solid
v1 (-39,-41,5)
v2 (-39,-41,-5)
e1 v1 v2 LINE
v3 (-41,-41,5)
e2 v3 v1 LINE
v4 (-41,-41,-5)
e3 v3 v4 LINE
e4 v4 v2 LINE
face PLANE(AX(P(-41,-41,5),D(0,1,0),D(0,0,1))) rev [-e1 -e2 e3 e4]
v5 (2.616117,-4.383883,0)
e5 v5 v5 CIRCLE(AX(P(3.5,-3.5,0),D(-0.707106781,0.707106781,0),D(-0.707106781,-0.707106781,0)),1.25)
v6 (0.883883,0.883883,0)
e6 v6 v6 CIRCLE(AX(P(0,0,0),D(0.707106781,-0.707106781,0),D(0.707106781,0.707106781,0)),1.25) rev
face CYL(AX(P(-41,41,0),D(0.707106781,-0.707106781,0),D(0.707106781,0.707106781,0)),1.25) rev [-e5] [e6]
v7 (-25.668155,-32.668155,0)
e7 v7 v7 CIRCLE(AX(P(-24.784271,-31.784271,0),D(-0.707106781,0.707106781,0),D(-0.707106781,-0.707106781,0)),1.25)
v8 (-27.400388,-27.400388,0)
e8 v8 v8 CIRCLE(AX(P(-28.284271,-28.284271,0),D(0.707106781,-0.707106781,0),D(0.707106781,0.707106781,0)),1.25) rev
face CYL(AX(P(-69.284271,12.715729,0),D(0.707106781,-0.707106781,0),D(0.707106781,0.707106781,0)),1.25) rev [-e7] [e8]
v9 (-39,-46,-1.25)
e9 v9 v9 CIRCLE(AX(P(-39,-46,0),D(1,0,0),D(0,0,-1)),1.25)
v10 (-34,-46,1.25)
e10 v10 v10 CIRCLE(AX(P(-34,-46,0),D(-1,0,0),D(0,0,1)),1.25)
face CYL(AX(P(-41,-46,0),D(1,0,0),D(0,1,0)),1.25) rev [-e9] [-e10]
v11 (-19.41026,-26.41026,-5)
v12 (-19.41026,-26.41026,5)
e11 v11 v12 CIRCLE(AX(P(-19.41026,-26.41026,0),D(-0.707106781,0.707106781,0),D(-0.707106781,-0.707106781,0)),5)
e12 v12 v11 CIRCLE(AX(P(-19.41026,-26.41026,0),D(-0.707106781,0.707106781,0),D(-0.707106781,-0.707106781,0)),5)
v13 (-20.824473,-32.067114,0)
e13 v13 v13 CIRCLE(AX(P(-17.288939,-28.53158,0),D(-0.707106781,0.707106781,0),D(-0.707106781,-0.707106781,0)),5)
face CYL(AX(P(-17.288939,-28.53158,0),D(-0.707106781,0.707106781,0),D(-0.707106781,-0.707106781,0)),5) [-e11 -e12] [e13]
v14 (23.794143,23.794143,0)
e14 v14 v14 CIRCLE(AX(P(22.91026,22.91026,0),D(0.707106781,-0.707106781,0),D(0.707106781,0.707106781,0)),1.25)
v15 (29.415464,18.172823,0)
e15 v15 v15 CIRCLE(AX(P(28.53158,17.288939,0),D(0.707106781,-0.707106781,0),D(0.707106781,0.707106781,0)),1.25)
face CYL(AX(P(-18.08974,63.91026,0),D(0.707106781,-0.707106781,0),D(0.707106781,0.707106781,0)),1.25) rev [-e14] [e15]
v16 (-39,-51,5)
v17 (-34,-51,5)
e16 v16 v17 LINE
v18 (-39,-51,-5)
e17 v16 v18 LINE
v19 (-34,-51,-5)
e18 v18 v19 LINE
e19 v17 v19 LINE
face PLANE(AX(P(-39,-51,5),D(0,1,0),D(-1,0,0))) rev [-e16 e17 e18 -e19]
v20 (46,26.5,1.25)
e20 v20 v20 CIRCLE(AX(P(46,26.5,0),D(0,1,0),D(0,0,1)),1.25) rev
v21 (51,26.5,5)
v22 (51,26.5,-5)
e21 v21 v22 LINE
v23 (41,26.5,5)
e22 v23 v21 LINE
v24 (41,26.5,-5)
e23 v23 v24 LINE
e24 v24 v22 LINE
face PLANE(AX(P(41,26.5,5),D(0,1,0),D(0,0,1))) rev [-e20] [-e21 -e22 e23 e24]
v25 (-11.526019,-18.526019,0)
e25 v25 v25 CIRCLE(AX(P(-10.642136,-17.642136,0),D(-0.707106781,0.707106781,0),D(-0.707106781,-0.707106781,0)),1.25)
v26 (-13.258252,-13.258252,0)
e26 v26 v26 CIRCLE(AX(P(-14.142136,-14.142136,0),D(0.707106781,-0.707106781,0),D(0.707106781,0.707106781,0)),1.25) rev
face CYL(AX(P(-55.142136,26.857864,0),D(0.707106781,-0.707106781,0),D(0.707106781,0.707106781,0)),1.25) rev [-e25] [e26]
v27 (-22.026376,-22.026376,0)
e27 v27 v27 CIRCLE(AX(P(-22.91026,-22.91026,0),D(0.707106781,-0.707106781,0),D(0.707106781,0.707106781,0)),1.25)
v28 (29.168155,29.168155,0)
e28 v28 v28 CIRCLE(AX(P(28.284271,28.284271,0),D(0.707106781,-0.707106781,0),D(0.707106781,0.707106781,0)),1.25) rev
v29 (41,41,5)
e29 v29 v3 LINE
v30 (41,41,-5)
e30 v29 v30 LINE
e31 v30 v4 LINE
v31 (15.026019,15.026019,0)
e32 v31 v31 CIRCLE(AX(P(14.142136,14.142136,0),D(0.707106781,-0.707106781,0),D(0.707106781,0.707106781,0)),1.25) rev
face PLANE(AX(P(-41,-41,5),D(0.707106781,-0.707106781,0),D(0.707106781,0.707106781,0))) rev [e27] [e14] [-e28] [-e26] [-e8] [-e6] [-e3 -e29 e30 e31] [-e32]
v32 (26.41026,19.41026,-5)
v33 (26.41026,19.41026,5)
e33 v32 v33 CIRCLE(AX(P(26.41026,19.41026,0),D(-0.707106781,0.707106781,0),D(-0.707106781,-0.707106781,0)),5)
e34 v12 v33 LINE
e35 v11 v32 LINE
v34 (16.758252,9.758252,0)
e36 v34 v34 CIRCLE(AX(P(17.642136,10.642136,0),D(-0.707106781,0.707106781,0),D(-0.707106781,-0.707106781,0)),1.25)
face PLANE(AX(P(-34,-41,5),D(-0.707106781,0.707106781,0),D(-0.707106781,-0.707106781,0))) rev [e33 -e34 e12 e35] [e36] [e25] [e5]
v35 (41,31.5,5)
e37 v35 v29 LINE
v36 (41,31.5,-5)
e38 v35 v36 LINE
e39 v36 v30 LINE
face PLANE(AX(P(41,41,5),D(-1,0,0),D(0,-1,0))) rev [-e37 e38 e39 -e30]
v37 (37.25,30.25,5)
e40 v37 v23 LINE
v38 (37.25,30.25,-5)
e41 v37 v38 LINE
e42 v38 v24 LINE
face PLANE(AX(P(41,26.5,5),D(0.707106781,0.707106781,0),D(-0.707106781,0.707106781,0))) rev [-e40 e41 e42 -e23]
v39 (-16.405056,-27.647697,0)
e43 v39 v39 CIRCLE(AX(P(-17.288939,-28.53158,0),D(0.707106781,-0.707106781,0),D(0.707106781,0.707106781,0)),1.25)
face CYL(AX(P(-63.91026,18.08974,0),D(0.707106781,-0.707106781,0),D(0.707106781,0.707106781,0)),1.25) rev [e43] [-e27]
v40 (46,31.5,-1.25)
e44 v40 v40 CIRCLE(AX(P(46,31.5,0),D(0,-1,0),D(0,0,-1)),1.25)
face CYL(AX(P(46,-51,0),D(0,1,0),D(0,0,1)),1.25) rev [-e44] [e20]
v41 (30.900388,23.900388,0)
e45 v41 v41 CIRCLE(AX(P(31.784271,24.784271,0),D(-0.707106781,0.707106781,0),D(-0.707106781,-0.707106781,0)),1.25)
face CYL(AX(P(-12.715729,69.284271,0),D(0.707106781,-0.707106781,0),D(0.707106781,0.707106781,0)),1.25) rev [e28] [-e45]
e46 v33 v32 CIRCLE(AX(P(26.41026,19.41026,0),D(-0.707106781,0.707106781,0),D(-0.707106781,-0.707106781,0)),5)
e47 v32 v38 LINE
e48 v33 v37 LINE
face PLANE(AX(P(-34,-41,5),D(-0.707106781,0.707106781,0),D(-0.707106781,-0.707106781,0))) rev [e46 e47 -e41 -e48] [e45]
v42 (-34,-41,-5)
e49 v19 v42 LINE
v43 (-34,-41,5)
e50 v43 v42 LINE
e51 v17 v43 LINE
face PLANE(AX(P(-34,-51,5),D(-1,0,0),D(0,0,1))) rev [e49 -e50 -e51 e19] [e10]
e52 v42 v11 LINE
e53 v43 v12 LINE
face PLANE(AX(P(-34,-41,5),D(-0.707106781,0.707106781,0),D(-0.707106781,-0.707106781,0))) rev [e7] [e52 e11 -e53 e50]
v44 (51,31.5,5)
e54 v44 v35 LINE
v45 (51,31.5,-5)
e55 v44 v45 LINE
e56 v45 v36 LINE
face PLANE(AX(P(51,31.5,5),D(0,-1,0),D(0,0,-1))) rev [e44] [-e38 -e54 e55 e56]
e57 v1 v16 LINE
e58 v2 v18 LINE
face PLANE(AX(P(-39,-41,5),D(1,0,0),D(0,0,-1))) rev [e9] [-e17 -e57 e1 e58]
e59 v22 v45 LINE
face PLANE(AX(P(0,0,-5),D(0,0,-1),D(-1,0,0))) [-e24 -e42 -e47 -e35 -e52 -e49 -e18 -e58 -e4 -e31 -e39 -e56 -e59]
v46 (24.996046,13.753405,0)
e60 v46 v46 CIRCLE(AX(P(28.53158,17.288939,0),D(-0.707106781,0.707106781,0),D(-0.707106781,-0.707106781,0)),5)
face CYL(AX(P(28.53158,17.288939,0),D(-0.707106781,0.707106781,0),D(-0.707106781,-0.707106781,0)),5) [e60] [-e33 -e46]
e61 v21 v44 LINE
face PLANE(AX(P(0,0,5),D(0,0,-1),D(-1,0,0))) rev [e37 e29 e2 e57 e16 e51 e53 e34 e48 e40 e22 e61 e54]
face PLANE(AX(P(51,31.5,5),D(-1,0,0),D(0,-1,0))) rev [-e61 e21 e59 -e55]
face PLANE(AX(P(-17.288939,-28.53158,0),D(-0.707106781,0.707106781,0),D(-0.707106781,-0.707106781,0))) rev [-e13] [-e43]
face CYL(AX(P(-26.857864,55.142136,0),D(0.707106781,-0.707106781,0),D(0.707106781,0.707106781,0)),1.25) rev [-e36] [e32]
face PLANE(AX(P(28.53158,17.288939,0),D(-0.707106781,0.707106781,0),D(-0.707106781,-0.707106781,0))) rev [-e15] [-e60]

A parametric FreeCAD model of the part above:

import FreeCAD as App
import Part
import Sketcher
Q = App.Units.Quantity


def add_polygon(sketch, points):
    """Adds a closed chain of lines whose ends are joined by coincident constraints."""
    first, n = sketch.GeometryCount, len(points)
    for a, b in zip(points, points[1:] + points[:1]):
        sketch.addGeometry(Part.LineSegment(App.Vector(*a, 0), App.Vector(*b, 0)), False)
    for i in range(n):
        sketch.addConstraint(Sketcher.Constraint("Coincident", first + i, 2, first + (i + 1) % n, 1))

doc = App.newDocument("Part")
params = doc.addObject("Spreadsheet::Sheet", "Params")
for row, (alias, value) in enumerate([
    ("sketch1_width", "2 mm"),
    ("sketch1_width2", "5 mm"),
    ("sketch1_width3", "10 mm"),
    ("sketch1_height", "9.5 mm"),
    ("pad1_length", "10 mm"),
    ("sketch2_diameter", "2.5 mm"),
    ("sketch3_diameter", "2.5 mm"),
    ("sketch4_diameter", "10 mm"),
    ("pad2_length", "3 mm"),
    ("sketch5_diameter", "2.5 mm"),
    ("sketch6_diameter", "2.5 mm"),
    ("linearpattern_pitch", "20 mm"),
], start=1):
    params.set(f"A{row}", alias)
    params.set(f"B{row}", "=" + value)
    params.setAlias(f"B{row}", alias)

body = doc.addObject("PartDesign::Body", "Body")

# Sketch on XY plane
sketch1 = body.newObject("Sketcher::SketchObject", "Sketch")
sketch1.AttachmentSupport = (doc.getObject("XY_Plane"), [""])
sketch1.MapMode = "FlatFace"
add_polygon(sketch1, [(41, 41), (-41, -41), (-39, -41), (-39, -51), (-34, -51), (-34, -41), (37.2, 30.2), (41, 26.5), (51, 26.5), (51, 31.5), (41, 31.5)])  # lines 0-10
sketch1.addConstraint([
    Sketcher.Constraint("Horizontal", 1),
    Sketcher.Constraint("Vertical", 2),
    Sketcher.Constraint("Horizontal", 3),
    Sketcher.Constraint("Vertical", 4),
    Sketcher.Constraint("Horizontal", 7),
    Sketcher.Constraint("Vertical", 8),
    Sketcher.Constraint("Horizontal", 9),
    Sketcher.Constraint("Vertical", 10),
    Sketcher.Constraint("Symmetric", 0, 2, 10, 2, -1, 1),
    Sketcher.Constraint("Parallel", 0, 5),
    Sketcher.Constraint("Perpendicular", 5, 6),
    Sketcher.Constraint("Horizontal", 1, 2, 4, 2),
    Sketcher.Constraint("Vertical", 6, 2, 9, 2),
    Sketcher.Constraint("Equal", 9, 2),
    Sketcher.Constraint("Equal", 3, 8),
    Sketcher.Constraint("DistanceX", 1, 1, 1, 2, 2.0),
    Sketcher.Constraint("DistanceX", 3, 1, 3, 2, 5.0),
    Sketcher.Constraint("DistanceX", 7, 1, 7, 2, 10.0),
    Sketcher.Constraint("Angle", 0, Q("-135 deg")),
    Sketcher.Constraint("DistanceY", 10, 1, 10, 2, 9.5),
    Sketcher.Constraint("DistanceX", 0, 2, -1, 1, 41.0),
])
sketch1.setExpression("Constraints[26]", "Params.sketch1_width")
sketch1.setExpression("Constraints[27]", "Params.sketch1_width2")
sketch1.setExpression("Constraints[28]", "Params.sketch1_width3")
sketch1.setExpression("Constraints[30]", "Params.sketch1_height")
pad1 = body.newObject("PartDesign::Pad", "Pad")
pad1.Profile = sketch1
pad1.setExpression("Length", "Params.pad1_length")
pad1.Midplane = True

# Sketch on YZ plane
sketch2 = body.newObject("Sketcher::SketchObject", "Sketch001")
sketch2.AttachmentSupport = (doc.getObject("YZ_Plane"), [""])
sketch2.MapMode = "FlatFace"
sketch2.AttachmentOffset = App.Placement(App.Vector(0, 0, 41), App.Rotation())
sketch2.addGeometry(Part.Circle(App.Vector(-46, 0, 0), App.Vector(0, 0, 1), 1.2), False)
sketch2.addConstraint([
    Sketcher.Constraint("PointOnObject", 0, 3, -1),
    Sketcher.Constraint("Diameter", 0, 2.5),
    Sketcher.Constraint("DistanceX", 0, 3, -1, 1, 46.0),
])
sketch2.setExpression("Constraints[1]", "Params.sketch2_diameter")
pocket1 = body.newObject("PartDesign::Pocket", "Pocket")
pocket1.Profile = sketch2
pocket1.Type = "ThroughAll"

# Sketch on XZ plane
sketch3 = body.newObject("Sketcher::SketchObject", "Sketch002")
sketch3.AttachmentSupport = (doc.getObject("XZ_Plane"), [""])
sketch3.MapMode = "FlatFace"
sketch3.AttachmentOffset = App.Placement(App.Vector(0, 0, -31.5), App.Rotation())
sketch3.addGeometry(Part.Circle(App.Vector(46, 0, 0), App.Vector(0, 0, 1), 1.2), False)
sketch3.addConstraint([
    Sketcher.Constraint("PointOnObject", 0, 3, -1),
    Sketcher.Constraint("Diameter", 0, 2.5),
    Sketcher.Constraint("DistanceX", -1, 1, 0, 3, 46.0),
])
sketch3.setExpression("Constraints[1]", "Params.sketch3_diameter")
pocket2 = body.newObject("PartDesign::Pocket", "Pocket001")
pocket2.Profile = sketch3
pocket2.Type = "ThroughAll"
pocket2.Reversed = True

# Sketch on an angled plane
sketch4 = body.newObject("Sketcher::SketchObject", "Sketch003")
sketch4.Placement = App.Placement(App.Vector(3.5, -3.5, 0), App.Rotation(App.Vector(0, 0, 1), App.Vector(0.707106781, 0.707106781, 0), App.Vector(-0.707106781, 0.707106781, 0), "ZXY"))
sketch4.addGeometry([
    Part.Circle(App.Vector(0, -32, 0), App.Vector(0, 0, 1), 5),
    Part.Circle(App.Vector(0, 32, 0), App.Vector(0, 0, 1), 5),
], False)
sketch4.addConstraint([
    Sketcher.Constraint("Equal", 0, 1),
    Sketcher.Constraint("Symmetric", 0, 3, 1, 3, -1, 1),
    Sketcher.Constraint("PointOnObject", 0, 3, -2),
    Sketcher.Constraint("Diameter", 0, 10.0),
    Sketcher.Constraint("DistanceY", 0, 3, -1, 1, 32.4),
])
sketch4.setExpression("Constraints[3]", "Params.sketch4_diameter")
pad2 = body.newObject("PartDesign::Pad", "Pad001")
pad2.Profile = sketch4
pad2.setExpression("Length", "Params.pad2_length")
pad2.Reversed = True

# Sketch on an angled plane
sketch5 = body.newObject("Sketcher::SketchObject", "Sketch004")
sketch5.Placement = App.Placement(App.Vector(5.62132, -5.62132, 0), App.Rotation(App.Vector(0, 0, -1), App.Vector(0.707106781, 0.707106781, 0), App.Vector(0.707106781, -0.707106781, 0), "ZXY"))
sketch5.addGeometry([
    Part.Circle(App.Vector(0, 32.4, 0), App.Vector(0, 0, 1), 1.2),
    Part.Circle(App.Vector(0, -32.4, 0), App.Vector(0, 0, 1), 1.2),
], False)
sketch5.addConstraint([
    Sketcher.Constraint("Equal", 0, 1),
    Sketcher.Constraint("Symmetric", 0, 3, 1, 3, -1, 1),
    Sketcher.Constraint("PointOnObject", 0, 3, -2),
    Sketcher.Constraint("Diameter", 0, 2.5),
    Sketcher.Constraint("DistanceY", -1, 1, 0, 3, 32.4),
])
sketch5.setExpression("Constraints[3]", "Params.sketch5_diameter")
pocket3 = body.newObject("PartDesign::Pocket", "Pocket002")
pocket3.Profile = sketch5
pocket3.Type = "ThroughAll"

# Sketch on an angled plane
sketch6 = body.newObject("Sketcher::SketchObject", "Sketch005")
sketch6.Placement = App.Placement(App.Vector(3.5, -3.5, 0), App.Rotation(App.Vector(0, 0, 1), App.Vector(0.707106781, 0.707106781, 0), App.Vector(-0.707106781, 0.707106781, 0), "ZXY"))
sketch6.addGeometry(Part.Circle(App.Vector(0, 40, 0), App.Vector(0, 0, 1), 1.2), False)
sketch6.addConstraint([
    Sketcher.Constraint("PointOnObject", 0, 3, -2),
    Sketcher.Constraint("Diameter", 0, 2.5),
    Sketcher.Constraint("DistanceY", -1, 1, 0, 3, 40.0),
])
sketch6.setExpression("Constraints[1]", "Params.sketch6_diameter")
pocket4 = body.newObject("PartDesign::Pocket", "Pocket003")
pocket4.Profile = sketch6
pocket4.Type = "ThroughAll"
pocket4.Reversed = True
doc.recompute()

datumline = body.newObject("PartDesign::Line", "DatumLine")
datumline.Placement = App.Placement(App.Vector(0, 0, 0), App.Rotation(App.Vector(0, 0, 1), App.Vector(-0.707106781, -0.707106781, 0)))
linearpattern = body.newObject("PartDesign::LinearPattern", "LinearPattern")
linearpattern.Originals = [pocket4]
linearpattern.Direction = (datumline, [""])
linearpattern.Mode = "offset"
linearpattern.setExpression("Offset", "Params.linearpattern_pitch")
linearpattern.Occurrences = 5
body.Tip = linearpattern

doc.recompute()
